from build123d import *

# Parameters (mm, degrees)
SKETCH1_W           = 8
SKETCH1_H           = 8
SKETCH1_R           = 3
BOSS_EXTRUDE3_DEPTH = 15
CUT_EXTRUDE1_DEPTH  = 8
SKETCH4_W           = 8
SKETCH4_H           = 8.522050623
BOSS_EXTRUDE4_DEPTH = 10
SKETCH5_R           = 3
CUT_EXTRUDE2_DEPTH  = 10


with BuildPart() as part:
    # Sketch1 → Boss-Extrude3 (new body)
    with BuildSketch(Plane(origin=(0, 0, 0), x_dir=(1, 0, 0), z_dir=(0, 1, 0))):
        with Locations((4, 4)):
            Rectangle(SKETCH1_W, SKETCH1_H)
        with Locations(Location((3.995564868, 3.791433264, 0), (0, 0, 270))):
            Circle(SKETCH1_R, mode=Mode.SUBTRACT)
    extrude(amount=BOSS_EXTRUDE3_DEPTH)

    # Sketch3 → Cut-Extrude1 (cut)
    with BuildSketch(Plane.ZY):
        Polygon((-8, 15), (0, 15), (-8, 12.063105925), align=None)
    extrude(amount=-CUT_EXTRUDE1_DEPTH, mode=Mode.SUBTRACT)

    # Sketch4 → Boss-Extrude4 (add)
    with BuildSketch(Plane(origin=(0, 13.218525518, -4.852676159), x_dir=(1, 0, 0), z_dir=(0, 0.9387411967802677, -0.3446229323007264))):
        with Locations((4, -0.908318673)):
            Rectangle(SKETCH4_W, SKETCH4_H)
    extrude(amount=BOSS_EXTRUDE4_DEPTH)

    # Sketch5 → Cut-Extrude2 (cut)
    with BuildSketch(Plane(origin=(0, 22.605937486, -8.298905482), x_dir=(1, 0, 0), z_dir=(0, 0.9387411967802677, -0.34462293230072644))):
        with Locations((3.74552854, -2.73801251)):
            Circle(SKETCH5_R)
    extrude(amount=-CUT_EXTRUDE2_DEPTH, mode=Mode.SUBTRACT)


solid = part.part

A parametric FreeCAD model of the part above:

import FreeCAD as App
import Part
import Sketcher

V = App.Vector

doc = App.newDocument("Part")
params = doc.addObject("Spreadsheet::Sheet", "Params")
for row, (alias, value) in enumerate([
    ("sketch1_diameter", "6 mm"),
    ("sketch1_width", "8 mm"),
    ("pad1_length", "15 mm"),
    ("sketch2_height", "8 mm"),
    ("pocket1_length", "8 mm"),
    ("sketch3_width", "8 mm"),
    ("pad2_length", "10 mm"),
    ("sketch4_diameter", "6 mm"),
    ("pocket2_length", "10 mm"),
], start=1):
    params.set(f"A{row}", alias)
    params.set(f"B{row}", "=" + value)
    params.setAlias(f"B{row}", alias)

body = doc.addObject("PartDesign::Body", "Body")

# Sketch on XZ plane
sketch1 = body.newObject("Sketcher::SketchObject", "Sketch")
sketch1.AttachmentSupport = (doc.getObject("XZ_Plane"), [""])
sketch1.MapMode = "FlatFace"
sketch1.addGeometry(Part.LineSegment(V(0, -8, 0), V(0, 0, 0)), False)
sketch1.addGeometry(Part.LineSegment(V(0, 0, 0), V(8, 0, 0)), False)
sketch1.addGeometry(Part.LineSegment(V(8, 0, 0), V(8, -8, 0)), False)
sketch1.addGeometry(Part.LineSegment(V(8, -8, 0), V(0, -8, 0)), False)
sketch1.addGeometry(Part.Circle(V(4, -3.8, 0), V(0, 0, 1), 3), False)
sketch1.addConstraint(Sketcher.Constraint("Coincident", 0, 2, 1, 1))
sketch1.addConstraint(Sketcher.Constraint("Coincident", 1, 2, 2, 1))
sketch1.addConstraint(Sketcher.Constraint("Coincident", 2, 2, 3, 1))
sketch1.addConstraint(Sketcher.Constraint("Coincident", 3, 2, 0, 1))
sketch1.addConstraint(Sketcher.Constraint("Vertical", 0))
sketch1.addConstraint(Sketcher.Constraint("Horizontal", 1))
sketch1.addConstraint(Sketcher.Constraint("Vertical", 2))
sketch1.addConstraint(Sketcher.Constraint("Horizontal", 3))
sketch1.addConstraint(Sketcher.Constraint("Coincident", 0, 2, -1, 1))
sketch1.addConstraint(Sketcher.Constraint("Equal", 3, 0))
sketch1.addConstraint(Sketcher.Constraint("Diameter", 4, 6.0))
sketch1.addConstraint(Sketcher.Constraint("DistanceX", 1, 1, 1, 2, 8.0))
sketch1.addConstraint(Sketcher.Constraint("DistanceX", -1, 1, 4, 3, 3.995565))
sketch1.addConstraint(Sketcher.Constraint("DistanceY", 4, 3, -1, 1, 3.791433))
sketch1.setExpression("Constraints[10]", "Params.sketch1_diameter")
sketch1.setExpression("Constraints[11]", "Params.sketch1_width")
pad1 = body.newObject("PartDesign::Pad", "Pad")
pad1.Profile = sketch1
pad1.setExpression("Length", "Params.pad1_length")
pad1.Reversed = True

# Sketch on YZ plane
sketch2 = body.newObject("Sketcher::SketchObject", "Sketch001")
sketch2.AttachmentSupport = (doc.getObject("YZ_Plane"), [""])
sketch2.MapMode = "FlatFace"
sketch2.addGeometry(Part.LineSegment(V(15, 0, 0), V(15, -8, 0)), False)
sketch2.addGeometry(Part.LineSegment(V(15, -8, 0), V(12.1, -8, 0)), False)
sketch2.addGeometry(Part.LineSegment(V(12.1, -8, 0), V(15, 0, 0)), False)
sketch2.addConstraint(Sketcher.Constraint("Coincident", 0, 2, 1, 1))
sketch2.addConstraint(Sketcher.Constraint("Coincident", 1, 2, 2, 1))
sketch2.addConstraint(Sketcher.Constraint("Coincident", 2, 2, 0, 1))
sketch2.addConstraint(Sketcher.Constraint("Vertical", 0))
sketch2.addConstraint(Sketcher.Constraint("Horizontal", 1))
sketch2.addConstraint(Sketcher.Constraint("PointOnObject", 2, 2, -1))
sketch2.addConstraint(Sketcher.Constraint("DistanceY", 0, 2, 0, 1, 8.0))
sketch2.addConstraint(Sketcher.Constraint("DistanceX", -1, 1, 0, 2, 15.0))
sketch2.addConstraint(Sketcher.Constraint("Distance", 2, 8.522051))
sketch2.setExpression("Constraints[6]", "Params.sketch2_height")
pocket1 = body.newObject("PartDesign::Pocket", "Pocket")
pocket1.Profile = sketch2
pocket1.setExpression("Length", "Params.pocket1_length")
pocket1.Reversed = True

# Sketch on an angled plane
sketch3 = body.newObject("Sketcher::SketchObject", "Sketch002")
sketch3.Placement = App.Placement(V(0, 13.218526, -4.852676), App.Rotation(V(1, 0, 0), V(0, -0.344622932, -0.938741197), V(0, 0.938741197, -0.344622932), "ZXY"))
sketch3.addGeometry(Part.LineSegment(V(0, 3, 0), V(0, -5, 0)), False)
sketch3.addGeometry(Part.LineSegment(V(0, -5, 0), V(8, -5, 0)), False)
sketch3.addGeometry(Part.LineSegment(V(8, -5, 0), V(8, 3, 0)), False)
sketch3.addGeometry(Part.LineSegment(V(8, 3, 0), V(0, 3, 0)), False)
sketch3.addConstraint(Sketcher.Constraint("Coincident", 0, 2, 1, 1))
sketch3.addConstraint(Sketcher.Constraint("Coincident", 1, 2, 2, 1))
sketch3.addConstraint(Sketcher.Constraint("Coincident", 2, 2, 3, 1))
sketch3.addConstraint(Sketcher.Constraint("Coincident", 3, 2, 0, 1))
sketch3.addConstraint(Sketcher.Constraint("Vertical", 0))
sketch3.addConstraint(Sketcher.Constraint("Horizontal", 1))
sketch3.addConstraint(Sketcher.Constraint("Vertical", 2))
sketch3.addConstraint(Sketcher.Constraint("Horizontal", 3))
sketch3.addConstraint(Sketcher.Constraint("PointOnObject", 0, 2, -2))
sketch3.addConstraint(Sketcher.Constraint("DistanceX", 1, 1, 1, 2, 8.0))
sketch3.addConstraint(Sketcher.Constraint("DistanceY", 0, 2, 0, 1, 8.522051))
sketch3.addConstraint(Sketcher.Constraint("DistanceY", 0, 2, -1, 1, 5.169344))
sketch3.setExpression("Constraints[9]", "Params.sketch3_width")
pad2 = body.newObject("PartDesign::Pad", "Pad001")
pad2.Profile = sketch3
pad2.setExpression("Length", "Params.pad2_length")

# Sketch on an angled plane
sketch4 = body.newObject("Sketcher::SketchObject", "Sketch003")
sketch4.Placement = App.Placement(V(0, 22.605937, -8.298905), App.Rotation(V(1, 0, 0), V(0, -0.344622932, -0.938741197), V(0, 0.938741197, -0.344622932), "ZXY"))
sketch4.addGeometry(Part.Circle(V(3.7, -2.7, 0), V(0, 0, 1), 3), False)
sketch4.addConstraint(Sketcher.Constraint("Diameter", 0, 6.0))
sketch4.addConstraint(Sketcher.Constraint("DistanceX", -1, 1, 0, 3, 3.745529))
sketch4.addConstraint(Sketcher.Constraint("DistanceY", 0, 3, -1, 1, 2.738013))
sketch4.setExpression("Constraints[0]", "Params.sketch4_diameter")
pocket2 = body.newObject("PartDesign::Pocket", "Pocket001")
pocket2.Profile = sketch4
pocket2.setExpression("Length", "Params.pocket2_length")

doc.recompute()
